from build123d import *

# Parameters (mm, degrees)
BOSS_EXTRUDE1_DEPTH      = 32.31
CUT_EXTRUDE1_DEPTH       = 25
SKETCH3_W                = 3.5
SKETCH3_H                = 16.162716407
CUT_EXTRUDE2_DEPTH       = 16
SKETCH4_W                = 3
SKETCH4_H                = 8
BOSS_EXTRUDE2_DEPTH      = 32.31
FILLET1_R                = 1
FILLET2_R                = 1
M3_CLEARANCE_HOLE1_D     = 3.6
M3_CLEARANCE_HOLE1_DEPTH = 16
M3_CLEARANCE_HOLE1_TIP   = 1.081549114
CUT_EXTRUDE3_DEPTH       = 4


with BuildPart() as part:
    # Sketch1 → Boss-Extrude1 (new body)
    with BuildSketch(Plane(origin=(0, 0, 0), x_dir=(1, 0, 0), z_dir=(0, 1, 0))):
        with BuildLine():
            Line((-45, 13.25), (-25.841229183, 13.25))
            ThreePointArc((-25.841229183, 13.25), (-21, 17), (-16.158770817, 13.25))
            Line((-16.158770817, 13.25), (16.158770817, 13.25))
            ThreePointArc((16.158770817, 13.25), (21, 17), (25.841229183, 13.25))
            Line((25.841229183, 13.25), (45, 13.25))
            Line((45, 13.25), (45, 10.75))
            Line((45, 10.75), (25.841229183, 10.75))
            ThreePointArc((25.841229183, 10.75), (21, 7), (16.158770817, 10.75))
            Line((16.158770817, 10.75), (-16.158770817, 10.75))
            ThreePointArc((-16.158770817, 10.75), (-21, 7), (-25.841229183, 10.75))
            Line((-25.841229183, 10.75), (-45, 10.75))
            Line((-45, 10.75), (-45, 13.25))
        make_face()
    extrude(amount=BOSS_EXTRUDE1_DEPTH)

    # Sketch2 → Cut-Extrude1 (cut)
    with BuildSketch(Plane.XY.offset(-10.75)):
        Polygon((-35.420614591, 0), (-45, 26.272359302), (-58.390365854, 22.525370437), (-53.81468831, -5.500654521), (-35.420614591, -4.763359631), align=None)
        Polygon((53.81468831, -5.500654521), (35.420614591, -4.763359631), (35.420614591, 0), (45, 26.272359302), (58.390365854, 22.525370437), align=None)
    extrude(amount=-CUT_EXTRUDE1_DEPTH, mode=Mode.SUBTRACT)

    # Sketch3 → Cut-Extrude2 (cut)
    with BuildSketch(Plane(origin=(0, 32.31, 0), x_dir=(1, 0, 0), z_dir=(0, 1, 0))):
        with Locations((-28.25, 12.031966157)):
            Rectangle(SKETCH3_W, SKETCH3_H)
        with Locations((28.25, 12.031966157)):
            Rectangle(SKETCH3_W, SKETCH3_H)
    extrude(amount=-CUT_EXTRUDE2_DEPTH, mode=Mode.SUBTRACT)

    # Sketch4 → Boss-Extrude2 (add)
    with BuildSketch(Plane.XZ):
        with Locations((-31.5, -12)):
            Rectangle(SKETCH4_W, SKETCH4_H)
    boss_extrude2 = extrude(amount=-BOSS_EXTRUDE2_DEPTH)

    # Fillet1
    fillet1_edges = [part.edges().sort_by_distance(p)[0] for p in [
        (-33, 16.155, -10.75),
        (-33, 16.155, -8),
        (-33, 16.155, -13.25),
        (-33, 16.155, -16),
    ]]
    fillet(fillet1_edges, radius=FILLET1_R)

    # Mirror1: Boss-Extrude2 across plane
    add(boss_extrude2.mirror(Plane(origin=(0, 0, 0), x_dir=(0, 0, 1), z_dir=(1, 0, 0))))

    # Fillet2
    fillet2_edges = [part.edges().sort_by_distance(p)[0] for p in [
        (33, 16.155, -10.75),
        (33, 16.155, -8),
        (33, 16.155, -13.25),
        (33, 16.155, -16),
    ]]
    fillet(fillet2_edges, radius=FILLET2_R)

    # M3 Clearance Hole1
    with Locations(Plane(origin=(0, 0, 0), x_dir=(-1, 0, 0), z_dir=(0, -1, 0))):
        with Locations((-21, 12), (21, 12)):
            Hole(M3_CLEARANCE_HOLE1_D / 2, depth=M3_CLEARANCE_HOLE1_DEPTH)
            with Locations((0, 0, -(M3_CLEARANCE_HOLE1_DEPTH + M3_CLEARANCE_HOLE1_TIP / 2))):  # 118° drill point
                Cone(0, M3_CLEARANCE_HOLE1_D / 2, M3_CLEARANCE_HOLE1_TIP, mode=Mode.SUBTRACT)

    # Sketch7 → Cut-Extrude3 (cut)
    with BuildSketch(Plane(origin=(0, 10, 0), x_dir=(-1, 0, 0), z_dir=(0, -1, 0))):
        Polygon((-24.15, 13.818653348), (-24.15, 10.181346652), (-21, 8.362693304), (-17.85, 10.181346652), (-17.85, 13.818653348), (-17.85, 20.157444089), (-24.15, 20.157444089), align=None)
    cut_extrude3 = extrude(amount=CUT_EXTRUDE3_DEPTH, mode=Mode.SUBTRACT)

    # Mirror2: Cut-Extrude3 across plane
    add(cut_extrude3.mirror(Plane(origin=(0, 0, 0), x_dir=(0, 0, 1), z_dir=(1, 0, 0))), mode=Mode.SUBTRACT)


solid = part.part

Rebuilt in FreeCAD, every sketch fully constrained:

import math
import FreeCAD as App
import Part
import Sketcher
Q = App.Units.Quantity


def edges_at(feature, points):
    """Names of the edges that pass closest to the given points."""
    edges = feature.Shape.Edges
    near = lambda p: min(range(len(edges)), key=lambda i: edges[i].distToShape(Part.Vertex(*p))[0])
    return sorted({f"Edge{near(p) + 1}" for p in points})


def add_polygon(sketch, points):
    """Adds a closed chain of lines whose ends are joined by coincident constraints."""
    first, n = sketch.GeometryCount, len(points)
    for a, b in zip(points, points[1:] + points[:1]):
        sketch.addGeometry(Part.LineSegment(App.Vector(*a, 0), App.Vector(*b, 0)), False)
    for i in range(n):
        sketch.addConstraint(Sketcher.Constraint("Coincident", first + i, 2, first + (i + 1) % n, 1))

doc = App.newDocument("Part")
body = doc.addObject("PartDesign::Body", "Body")

sketch1 = body.newObject("Sketcher::SketchObject", "Sketch")
sketch1.AttachmentSupport = (doc.getObject("XZ_Plane"), [""])
sketch1.MapMode = "FlatFace"
sketch1.addGeometry([
    Part.LineSegment(App.Vector(-25.8, -13.2, 0), App.Vector(-45, -13.2, 0)),
    Part.LineSegment(App.Vector(-45, -13.2, 0), App.Vector(-45, -10.8, 0)),
    Part.LineSegment(App.Vector(-45, -10.8, 0), App.Vector(-25.8, -10.8, 0)),
    Part.ArcOfCircle(Part.Circle(App.Vector(-21, -12, 0), App.Vector(0, 0, 1), 5), math.radians(14), math.radians(166)),
    Part.LineSegment(App.Vector(-16.2, -10.8, 0), App.Vector(16.2, -10.8, 0)),
    Part.ArcOfCircle(Part.Circle(App.Vector(21, -12, 0), App.Vector(0, 0, 1), 5), math.radians(14), math.radians(166)),
    Part.LineSegment(App.Vector(25.8, -10.8, 0), App.Vector(45, -10.8, 0)),
    Part.LineSegment(App.Vector(45, -10.8, 0), App.Vector(45, -13.2, 0)),
    Part.LineSegment(App.Vector(45, -13.2, 0), App.Vector(25.8, -13.2, 0)),
    Part.ArcOfCircle(Part.Circle(App.Vector(21, -12, 0), App.Vector(0, 0, 1), 5), math.radians(-166), math.radians(-14)),
    Part.LineSegment(App.Vector(16.2, -13.2, 0), App.Vector(-16.2, -13.2, 0)),
    Part.ArcOfCircle(Part.Circle(App.Vector(-21, -12, 0), App.Vector(0, 0, 1), 5), math.radians(-166), math.radians(-14)),
], False)
sketch1.addConstraint([
    Sketcher.Constraint("Coincident", 0, 2, 1, 1),
    Sketcher.Constraint("Coincident", 1, 2, 2, 1),
    Sketcher.Constraint("Coincident", 2, 2, 3, 2),
    Sketcher.Constraint("Coincident", 3, 1, 4, 1),
    Sketcher.Constraint("Coincident", 4, 2, 5, 2),
    Sketcher.Constraint("Coincident", 5, 1, 6, 1),
    Sketcher.Constraint("Coincident", 6, 2, 7, 1),
    Sketcher.Constraint("Coincident", 7, 2, 8, 1),
    Sketcher.Constraint("Coincident", 8, 2, 9, 2),
    Sketcher.Constraint("Coincident", 9, 1, 10, 1),
    Sketcher.Constraint("Coincident", 10, 2, 11, 2),
    Sketcher.Constraint("Coincident", 11, 1, 0, 1),
    Sketcher.Constraint("Horizontal", 0),
    Sketcher.Constraint("Vertical", 1),
    Sketcher.Constraint("Horizontal", 2),
    Sketcher.Constraint("Horizontal", 4),
    Sketcher.Constraint("Horizontal", 6),
    Sketcher.Constraint("Vertical", 7),
    Sketcher.Constraint("Horizontal", 8),
    Sketcher.Constraint("Horizontal", 10),
    Sketcher.Constraint("Coincident", 9, 3, 5, 3),
    Sketcher.Constraint("Coincident", 11, 3, 3, 3),
    Sketcher.Constraint("Equal", 3, 5),
    Sketcher.Constraint("Equal", 5, 9),
    Sketcher.Constraint("Equal", 9, 11),
    Sketcher.Constraint("Symmetric", 3, 3, 5, 3, -2),
    Sketcher.Constraint("Symmetric", 1, 2, 6, 2, -2),
    Sketcher.Constraint("Horizontal", 2, 2, 3, 1),
    Sketcher.Constraint("Horizontal", 0, 2, 7, 2),
    Sketcher.Constraint("Horizontal", 8, 2, 9, 1),
    Sketcher.Constraint("Vertical", 5, 1, 8, 2),
    Sketcher.Constraint("Radius", 3, 5.0),
    Sketcher.Constraint("DistanceY", 1, 1, 1, 2, 2.5),
    Sketcher.Constraint("DistanceX", 3, 3, -1, 1, 21.0),
    Sketcher.Constraint("DistanceY", 3, 3, -1, 1, 12.0),
    Sketcher.Constraint("DistanceX", 0, 2, -1, 1, 45.0),
])
pad1 = body.newObject("PartDesign::Pad", "Pad")
pad1.Profile = sketch1
pad1.Length = 32.31
pad1.Reversed = True

sketch2 = body.newObject("Sketcher::SketchObject", "Sketch001")
sketch2.AttachmentSupport = (doc.getObject("XY_Plane"), [""])
sketch2.MapMode = "FlatFace"
sketch2.AttachmentOffset = App.Placement(App.Vector(0, 0, -10.75), App.Rotation())
add_polygon(sketch2, [(-35.4, 0), (-45, 26.3), (-58.4, 22.5), (-53.8, -5.5), (-35.4, -4.8)])
add_polygon(sketch2, [(35.4, -4.8), (53.8, -5.5), (58.4, 22.5), (45, 26.3), (35.4, 0)])
sketch2.addConstraint([
    Sketcher.Constraint("Vertical", 4),
    Sketcher.Constraint("Vertical", 9),
    Sketcher.Constraint("Symmetric", 4, 2, 8, 2, -1, 1),
    Sketcher.Constraint("Symmetric", 2, 2, 5, 2, -2),
    Sketcher.Constraint("Symmetric", 1, 2, 6, 2, -2),
    Sketcher.Constraint("Symmetric", 0, 2, 7, 2, -2),
    Sketcher.Constraint("PointOnObject", 4, 2, -1),
    Sketcher.Constraint("Horizontal", 3, 2, 9, 2),
    Sketcher.Constraint("DistanceX", 0, 2, -1, 1, 45.0),
    Sketcher.Constraint("DistanceY", 4, 1, 4, 2, 4.76336),
    Sketcher.Constraint("Distance", 0, 27.96429),
    Sketcher.Constraint("Distance", 1, 13.904741),
    Sketcher.Constraint("DistanceY", -1, 1, 0, 2, 26.272359),
    Sketcher.Constraint("DistanceY", -1, 1, 1, 2, 22.52537),
    Sketcher.Constraint("DistanceX", 2, 2, -1, 1, 53.814688),
    Sketcher.Constraint("Distance", 2, 28.397093),
])
pocket1 = body.newObject("PartDesign::Pocket", "Pocket")
pocket1.Profile = sketch2
pocket1.Length = 25

sketch3 = body.newObject("Sketcher::SketchObject", "Sketch002")
sketch3.AttachmentSupport = (doc.getObject("XZ_Plane"), [""])
sketch3.MapMode = "FlatFace"
sketch3.AttachmentOffset = App.Placement(App.Vector(0, 0, -32.31), App.Rotation())
add_polygon(sketch3, [(-30, -20.1), (-30, -4), (-26.5, -4), (-26.5, -20.1)])
add_polygon(sketch3, [(26.5, -20.1), (26.5, -4), (30, -4), (30, -20.1)])
sketch3.addConstraint([
    Sketcher.Constraint("Vertical", 0),
    Sketcher.Constraint("Horizontal", 1),
    Sketcher.Constraint("Vertical", 2),
    Sketcher.Constraint("Horizontal", 3),
    Sketcher.Constraint("Vertical", 4),
    Sketcher.Constraint("Horizontal", 5),
    Sketcher.Constraint("Vertical", 6),
    Sketcher.Constraint("Horizontal", 7),
    Sketcher.Constraint("Symmetric", 1, 2, 4, 2, -2),
    Sketcher.Constraint("Symmetric", 3, 2, 6, 2, -2),
    Sketcher.Constraint("DistanceX", 1, 1, 1, 2, 3.5),
    Sketcher.Constraint("DistanceX", 0, 2, -1, 1, 30.0),
    Sketcher.Constraint("DistanceY", 0, 1, 0, 2, 16.162716),
    Sketcher.Constraint("DistanceY", 0, 2, -1, 1, 3.950608),
])
pocket2 = body.newObject("PartDesign::Pocket", "Pocket001")
pocket2.Profile = sketch3
pocket2.Length = 16
pocket2.Reversed = True

sketch4 = body.newObject("Sketcher::SketchObject", "Sketch003")
sketch4.AttachmentSupport = (doc.getObject("XZ_Plane"), [""])
sketch4.MapMode = "FlatFace"
add_polygon(sketch4, [(-33, -8), (-33, -16), (-30, -16), (-30, -8)])
sketch4.addConstraint([
    Sketcher.Constraint("Vertical", 0),
    Sketcher.Constraint("Horizontal", 1),
    Sketcher.Constraint("Vertical", 2),
    Sketcher.Constraint("Horizontal", 3),
    Sketcher.Constraint("DistanceX", 1, 1, 1, 2, 3.0),
    Sketcher.Constraint("DistanceY", 0, 2, 0, 1, 8.0),
    Sketcher.Constraint("DistanceX", 0, 2, -1, 1, 33.0),
    Sketcher.Constraint("DistanceY", 0, 2, -1, 1, 16.0),
])
pad2 = body.newObject("PartDesign::Pad", "Pad001")
pad2.Profile = sketch4
pad2.Length = 32.31
pad2.Reversed = True
doc.recompute()

fillet = body.newObject("PartDesign::Fillet", "Fillet")
fillet.Base = (pad2, edges_at(pad2, [
    (-33, 16.155, -10.75),
    (-33, 16.155, -8),
    (-33, 16.155, -13.25),
    (-33, 16.155, -16),
]))
fillet.Radius = 1
doc.recompute()

mirrored = body.newObject("PartDesign::Mirrored", "Mirrored")
mirrored.Originals = [pad2]
mirrored.MirrorPlane = (doc.getObject("YZ_Plane"), [""])
body.Tip = mirrored
doc.recompute()

fillet2 = body.newObject("PartDesign::Fillet", "Fillet001")
fillet2.Base = (mirrored, edges_at(mirrored, [
    (33, 16.155, -10.75),
    (33, 16.155, -8),
    (33, 16.155, -13.25),
    (33, 16.155, -16),
]))
fillet2.Radius = 1

sketch5 = body.newObject("Sketcher::SketchObject", "Sketch004")
sketch5.AttachmentSupport = (doc.getObject("XZ_Plane"), [""])
sketch5.MapMode = "FlatFace"
sketch5.addGeometry([
    Part.Circle(App.Vector(21, -12, 0), App.Vector(0, 0, 1), 1.8),
    Part.Circle(App.Vector(-21, -12, 0), App.Vector(0, 0, 1), 1.8),
], False)
sketch5.addConstraint([
    Sketcher.Constraint("Equal", 0, 1),
    Sketcher.Constraint("Symmetric", 0, 3, 1, 3, -2),
    Sketcher.Constraint("Diameter", 0, 3.6),
    Sketcher.Constraint("DistanceX", -1, 1, 0, 3, 21.0),
    Sketcher.Constraint("DistanceY", 0, 3, -1, 1, 12.0),
])
doc.recompute()
hole = body.newObject("PartDesign::Hole", "Hole")
hole.Profile = sketch5
hole.ThreadType = "None"
hole.Diameter = 3.6
hole.DepthType = "Dimension"
hole.Depth = 16
hole.DrillPoint = "Angled"
hole.DrillPointAngle = 118

sketch6 = body.newObject("Sketcher::SketchObject", "Sketch005")
sketch6.AttachmentSupport = (doc.getObject("XZ_Plane"), [""])
sketch6.MapMode = "FlatFace"
sketch6.AttachmentOffset = App.Placement(App.Vector(0, 0, -10), App.Rotation())
add_polygon(sketch6, [(24.1, -10.2), (21, -8.4), (17.9, -10.2), (17.9, -20.2), (24.1, -20.2)])
sketch6.addConstraint([
    Sketcher.Constraint("Vertical", 2),
    Sketcher.Constraint("Horizontal", 3),
    Sketcher.Constraint("Vertical", 4),
    Sketcher.Constraint("Horizontal", 1, 2, 4, 2),
    Sketcher.Constraint("Equal", 0, 1),
    Sketcher.Constraint("Angle", 0, Q("150 deg")),
    Sketcher.Constraint("DistanceX", 3, 1, 3, 2, 6.3),
    Sketcher.Constraint("DistanceX", -1, 1, 0, 2, 21.0),
    Sketcher.Constraint("DistanceY", 2, 2, 2, 1, 9.976097),
    Sketcher.Constraint("DistanceY", 0, 2, -1, 1, 8.362693),
])
pocket3 = body.newObject("PartDesign::Pocket", "Pocket002")
pocket3.Profile = sketch6
pocket3.Length = 4
pocket3.Reversed = True
doc.recompute()

mirrored2 = body.newObject("PartDesign::Mirrored", "Mirrored001")
mirrored2.Originals = [pocket3]
mirrored2.MirrorPlane = (doc.getObject("YZ_Plane"), [""])
body.Tip = mirrored2

doc.recompute()
